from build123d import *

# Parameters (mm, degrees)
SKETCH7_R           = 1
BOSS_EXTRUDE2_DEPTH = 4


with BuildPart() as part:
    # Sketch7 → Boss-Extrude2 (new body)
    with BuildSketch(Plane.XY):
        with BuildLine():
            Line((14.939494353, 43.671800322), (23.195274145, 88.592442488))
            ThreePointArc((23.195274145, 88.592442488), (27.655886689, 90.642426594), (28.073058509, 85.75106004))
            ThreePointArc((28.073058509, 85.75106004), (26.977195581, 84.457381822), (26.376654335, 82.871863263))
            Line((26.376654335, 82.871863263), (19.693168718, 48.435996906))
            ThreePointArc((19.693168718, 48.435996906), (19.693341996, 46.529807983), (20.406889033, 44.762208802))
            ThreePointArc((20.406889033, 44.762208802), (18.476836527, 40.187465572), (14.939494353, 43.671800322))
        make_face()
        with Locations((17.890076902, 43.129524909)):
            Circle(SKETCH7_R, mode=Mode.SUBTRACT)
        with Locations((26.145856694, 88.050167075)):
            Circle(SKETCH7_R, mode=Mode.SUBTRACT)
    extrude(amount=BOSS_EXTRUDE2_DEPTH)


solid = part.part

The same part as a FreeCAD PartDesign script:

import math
import FreeCAD as App
import Part
import Sketcher
from FreeCAD import Vector
Q = App.Units.Quantity

doc = App.newDocument("Part")
params = doc.addObject("Spreadsheet::Sheet", "Params")
for row, (alias, value) in enumerate([
    ("sketch1_diameter", "2 mm"),
    ("sketch1_radius", "3 mm"),
    ("sketch1_radius2", "5 mm"),
    ("pad1_length", "4 mm"),
], start=1):
    params.set(f"A{row}", alias)
    params.set(f"B{row}", "=" + value)
    params.setAlias(f"B{row}", alias)

body = doc.addObject("PartDesign::Body", "Body")

sketch1 = body.newObject("Sketcher::SketchObject", "Sketch")
sketch1.AttachmentSupport = (doc.getObject("XY_Plane"), [""])
sketch1.MapMode = "FlatFace"
sketch1.addGeometry(Part.LineSegment(Vector(23.195274, 88.592442, 0), Vector(14.939494, 43.6718, 0)), False)
sketch1.addGeometry(Part.ArcOfCircle(Part.Circle(Vector(17.890077, 43.129525, 0), Vector(0, 0, 1), 3), math.radians(169.586058), math.radians(392.971921)), False)
sketch1.addGeometry(Part.ArcOfCircle(Part.Circle(Vector(24.601576, 47.483349, 0), Vector(0, 0, 1), 5), math.radians(169.016304), math.radians(212.971921)), False)
sketch1.addGeometry(Part.LineSegment(Vector(19.693169, 48.435997, 0), Vector(26.376654, 82.871863, 0)), False)
sketch1.addGeometry(Part.ArcOfCircle(Part.Circle(Vector(31.285062, 81.919215, 0), Vector(0, 0, 1), 5), math.radians(129.97106), math.radians(169.016304)), False)
sketch1.addGeometry(Part.ArcOfCircle(Part.Circle(Vector(26.145857, 88.050167, 0), Vector(0, 0, 1), 3), math.radians(-50.02894), math.radians(169.586058)), False)
sketch1.addGeometry(Part.Circle(Vector(17.890077, 43.129525, 0), Vector(0, 0, 1), 1), False)
sketch1.addGeometry(Part.Circle(Vector(26.145857, 88.050167, 0), Vector(0, 0, 1), 1), False)
sketch1.addConstraint(Sketcher.Constraint("Tangent", 0, 2, 1, 1))
sketch1.addConstraint(Sketcher.Constraint("Tangent", 1, 2, 2, 2))
sketch1.addConstraint(Sketcher.Constraint("Tangent", 2, 1, 3, 1))
sketch1.addConstraint(Sketcher.Constraint("Tangent", 3, 2, 4, 2))
sketch1.addConstraint(Sketcher.Constraint("Tangent", 4, 1, 5, 1))
sketch1.addConstraint(Sketcher.Constraint("Tangent", 5, 2, 0, 1))
sketch1.addConstraint(Sketcher.Constraint("Coincident", 6, 3, 1, 3))
sketch1.addConstraint(Sketcher.Constraint("Coincident", 7, 3, 5, 3))
sketch1.addConstraint(Sketcher.Constraint("Equal", 2, 4))
sketch1.addConstraint(Sketcher.Constraint("Equal", 1, 5))
sketch1.addConstraint(Sketcher.Constraint("Equal", 6, 7))
sketch1.addConstraint(Sketcher.Constraint("Diameter", 6, Q("2 mm")))
sketch1.addConstraint(Sketcher.Constraint("Radius", 1, Q("3 mm")))
sketch1.addConstraint(Sketcher.Constraint("Radius", 2, Q("5 mm")))
sketch1.addConstraint(Sketcher.Constraint("DistanceY", -1, 1, 0, 2, Q("43.6718 mm")))
sketch1.addConstraint(Sketcher.Constraint("DistanceX", 1, 3, 2, 3, Q("6.711499 mm")))
sketch1.addConstraint(Sketcher.Constraint("DistanceX", 7, 3, 4, 1, Q("1.927202 mm")))
sketch1.addConstraint(Sketcher.Constraint("Distance", 0, Q("45.67299 mm")))
sketch1.addConstraint(Sketcher.Constraint("DistanceY", -1, 1, 2, 3, Q("47.483349 mm")))
sketch1.addConstraint(Sketcher.Constraint("DistanceX", -1, 1, 4, 3, Q("31.285062 mm")))
sketch1.setExpression("Constraints[11]", "Params.sketch1_diameter")
sketch1.setExpression("Constraints[12]", "Params.sketch1_radius")
sketch1.setExpression("Constraints[13]", "Params.sketch1_radius2")
pad1 = body.newObject("PartDesign::Pad", "Pad")
pad1.Profile = sketch1
pad1.setExpression("Length", "Params.pad1_length")

doc.recompute()
